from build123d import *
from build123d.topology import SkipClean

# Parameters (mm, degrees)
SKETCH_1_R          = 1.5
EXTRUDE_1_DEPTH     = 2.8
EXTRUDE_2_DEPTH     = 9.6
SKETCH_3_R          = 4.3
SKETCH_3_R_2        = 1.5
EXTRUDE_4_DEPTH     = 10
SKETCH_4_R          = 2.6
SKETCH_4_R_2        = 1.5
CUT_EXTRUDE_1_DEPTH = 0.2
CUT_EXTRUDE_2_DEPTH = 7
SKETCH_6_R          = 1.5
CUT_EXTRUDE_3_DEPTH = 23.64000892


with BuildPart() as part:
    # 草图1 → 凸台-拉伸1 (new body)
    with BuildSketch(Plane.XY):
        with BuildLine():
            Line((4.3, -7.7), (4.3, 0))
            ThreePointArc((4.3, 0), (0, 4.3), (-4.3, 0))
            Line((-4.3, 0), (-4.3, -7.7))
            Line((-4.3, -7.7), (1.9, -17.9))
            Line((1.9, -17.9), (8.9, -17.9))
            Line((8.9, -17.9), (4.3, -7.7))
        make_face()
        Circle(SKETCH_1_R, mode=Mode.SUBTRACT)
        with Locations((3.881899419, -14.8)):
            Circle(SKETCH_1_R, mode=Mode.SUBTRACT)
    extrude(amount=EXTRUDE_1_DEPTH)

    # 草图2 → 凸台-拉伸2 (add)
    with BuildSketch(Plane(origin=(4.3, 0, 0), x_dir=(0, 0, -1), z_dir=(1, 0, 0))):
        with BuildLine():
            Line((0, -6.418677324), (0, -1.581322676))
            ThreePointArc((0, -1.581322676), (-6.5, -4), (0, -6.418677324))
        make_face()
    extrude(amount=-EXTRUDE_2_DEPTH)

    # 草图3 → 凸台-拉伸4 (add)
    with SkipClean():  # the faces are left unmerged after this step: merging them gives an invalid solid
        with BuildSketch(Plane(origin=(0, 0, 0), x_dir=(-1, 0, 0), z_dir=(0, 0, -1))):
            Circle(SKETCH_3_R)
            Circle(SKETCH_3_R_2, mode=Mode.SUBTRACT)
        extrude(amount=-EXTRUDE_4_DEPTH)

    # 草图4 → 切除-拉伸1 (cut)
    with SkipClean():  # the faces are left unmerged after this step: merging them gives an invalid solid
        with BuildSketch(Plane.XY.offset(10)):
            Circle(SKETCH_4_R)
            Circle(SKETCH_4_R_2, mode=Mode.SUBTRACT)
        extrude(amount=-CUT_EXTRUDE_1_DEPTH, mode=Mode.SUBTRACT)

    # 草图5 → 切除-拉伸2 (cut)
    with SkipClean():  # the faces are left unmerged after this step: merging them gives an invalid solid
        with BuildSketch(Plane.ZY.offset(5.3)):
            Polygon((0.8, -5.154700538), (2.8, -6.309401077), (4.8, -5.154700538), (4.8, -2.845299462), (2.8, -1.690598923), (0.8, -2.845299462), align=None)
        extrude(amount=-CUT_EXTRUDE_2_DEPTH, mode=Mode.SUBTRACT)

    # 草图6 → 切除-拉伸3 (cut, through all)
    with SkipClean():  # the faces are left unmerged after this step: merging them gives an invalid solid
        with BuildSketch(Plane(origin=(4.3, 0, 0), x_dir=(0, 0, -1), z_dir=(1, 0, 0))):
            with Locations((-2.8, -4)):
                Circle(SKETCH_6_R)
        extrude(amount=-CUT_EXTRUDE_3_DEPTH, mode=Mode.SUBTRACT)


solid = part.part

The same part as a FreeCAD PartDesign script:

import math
import FreeCAD as App
import Part
import Sketcher
from FreeCAD import Vector
Q = App.Units.Quantity


def add_polygon(sketch, points):
    """Adds a closed chain of lines whose ends are joined by coincident constraints."""
    first, n = sketch.GeometryCount, len(points)
    for a, b in zip(points, points[1:] + points[:1]):
        sketch.addGeometry(Part.LineSegment(App.Vector(*a, 0), App.Vector(*b, 0)), False)
    for i in range(n):
        sketch.addConstraint(Sketcher.Constraint("Coincident", first + i, 2, first + (i + 1) % n, 1))

doc = App.newDocument("Part")
body = doc.addObject("PartDesign::Body", "Body")

# Sketch on XY plane
sketch1 = body.newObject("Sketcher::SketchObject", "Sketch")
sketch1.AttachmentSupport = (doc.getObject("XY_Plane"), [""])
sketch1.MapMode = "FlatFace"
sketch1.addGeometry([
    Part.LineSegment(Vector(4.3, -7.7, 0), Vector(4.3, 0, 0)),  # 0
    Part.ArcOfCircle(Part.Circle(Vector(0, 0, 0), Vector(0, 0, 1), 4.3), math.radians(0), math.radians(180)),  # 1
    Part.LineSegment(Vector(-4.3, 0, 0), Vector(-4.3, -7.7, 0)),  # 2
    Part.LineSegment(Vector(-4.3, -7.7, 0), Vector(1.9, -17.9, 0)),  # 3
    Part.LineSegment(Vector(1.9, -17.9, 0), Vector(8.9, -17.9, 0)),  # 4
    Part.LineSegment(Vector(8.9, -17.9, 0), Vector(4.3, -7.7, 0)),  # 5
    Part.Circle(Vector(3.9, -14.8, 0), Vector(0, 0, 1), 1.5),  # 6
    Part.Circle(Vector(0, 0, 0), Vector(0, 0, 1), 1.5),  # 7
], False)
sketch1.addConstraint([
    Sketcher.Constraint("Tangent", 0, 2, 1, 1),
    Sketcher.Constraint("Tangent", 1, 2, 2, 1),
    Sketcher.Constraint("Coincident", 2, 2, 3, 1),
    Sketcher.Constraint("Coincident", 3, 2, 4, 1),
    Sketcher.Constraint("Coincident", 4, 2, 5, 1),
    Sketcher.Constraint("Coincident", 5, 2, 0, 1),
    Sketcher.Constraint("Vertical", 0),
    Sketcher.Constraint("Vertical", 2),
    Sketcher.Constraint("Horizontal", 4),
    Sketcher.Constraint("Coincident", 1, 3, -1, 1),
    Sketcher.Constraint("Coincident", 7, 3, -1, 1),
    Sketcher.Constraint("Equal", 6, 7),
    Sketcher.Constraint("Horizontal", 2, 2, 5, 2),
    Sketcher.Constraint("Diameter", 6, 3.0),
    Sketcher.Constraint("Radius", 1, 4.3),
    Sketcher.Constraint("DistanceX", 4, 1, 4, 2, 7.0),
    Sketcher.Constraint("DistanceY", 0, 1, 0, 2, 7.7),
    Sketcher.Constraint("DistanceY", 6, 3, -1, 1, 14.8),
    Sketcher.Constraint("DistanceX", -1, 1, 3, 2, 1.9),
    Sketcher.Constraint("DistanceY", 3, 2, -1, 1, 17.9),
    Sketcher.Constraint("DistanceX", -1, 1, 6, 3, 3.881899),
])
pad1 = body.newObject("PartDesign::Pad", "Pad")
pad1.Profile = sketch1
pad1.Length = 2.8

# Sketch on YZ plane
sketch2 = body.newObject("Sketcher::SketchObject", "Sketch001")
sketch2.AttachmentSupport = (doc.getObject("YZ_Plane"), [""])
sketch2.MapMode = "FlatFace"
sketch2.AttachmentOffset = App.Placement(Vector(0, 0, 4.3), App.Rotation())
sketch2.addGeometry([
    Part.LineSegment(Vector(-6.4, 0, 0), Vector(-1.6, 0, 0)),
    Part.ArcOfCircle(Part.Circle(Vector(-4, 2.8, 0), Vector(0, 0, 1), 3.7), math.radians(-49), math.radians(229)),
], False)
sketch2.addConstraint([
    Sketcher.Constraint("Coincident", 0, 1, 1, 2),
    Sketcher.Constraint("Coincident", 1, 1, 0, 2),
    Sketcher.Constraint("Horizontal", 0),
    Sketcher.Constraint("PointOnObject", 0, 1, -1),
    Sketcher.Constraint("Radius", 1, 3.7),
    Sketcher.Constraint("DistanceX", 1, 3, -1, 1, 4.0),
    Sketcher.Constraint("DistanceY", -1, 1, 1, 3, 2.8),
])
pad2 = body.newObject("PartDesign::Pad", "Pad001")
pad2.Profile = sketch2
pad2.Length = 9.6
pad2.Reversed = True

# Sketch on XY plane
sketch3 = body.newObject("Sketcher::SketchObject", "Sketch002")
sketch3.AttachmentSupport = (doc.getObject("XY_Plane"), [""])
sketch3.MapMode = "FlatFace"
sketch3.addGeometry([
    Part.Circle(Vector(0, 0, 0), Vector(0, 0, 1), 4.3),
    Part.Circle(Vector(0, 0, 0), Vector(0, 0, 1), 1.5),
], False)
sketch3.addConstraint([
    Sketcher.Constraint("Coincident", 0, 3, -1, 1),
    Sketcher.Constraint("Coincident", 1, 3, -1, 1),
    Sketcher.Constraint("Diameter", 1, 3.0),
    Sketcher.Constraint("Diameter", 0, 8.6),
])
pad3 = body.newObject("PartDesign::Pad", "Pad002")
pad3.Profile = sketch3
pad3.Length = 10

# Sketch on XY plane
sketch4 = body.newObject("Sketcher::SketchObject", "Sketch003")
sketch4.AttachmentSupport = (doc.getObject("XY_Plane"), [""])
sketch4.MapMode = "FlatFace"
sketch4.AttachmentOffset = App.Placement(Vector(0, 0, 10), App.Rotation())
sketch4.addGeometry([
    Part.Circle(Vector(0, 0, 0), Vector(0, 0, 1), 2.6),
    Part.Circle(Vector(0, 0, 0), Vector(0, 0, 1), 1.5),
], False)
sketch4.addConstraint([
    Sketcher.Constraint("Coincident", 0, 3, -1, 1),
    Sketcher.Constraint("Coincident", 1, 3, -1, 1),
    Sketcher.Constraint("Diameter", 1, 3.0),
    Sketcher.Constraint("Diameter", 0, 5.2),
])
pocket1 = body.newObject("PartDesign::Pocket", "Pocket")
pocket1.Profile = sketch4
pocket1.Length = 0.2

# Sketch on YZ plane
sketch5 = body.newObject("Sketcher::SketchObject", "Sketch004")
sketch5.AttachmentSupport = (doc.getObject("YZ_Plane"), [""])
sketch5.MapMode = "FlatFace"
sketch5.AttachmentOffset = App.Placement(Vector(0, 0, -5.3), App.Rotation())
add_polygon(sketch5, [(-5.2, 0.8), (-6.3, 2.8), (-5.2, 4.8), (-2.8, 4.8), (-1.7, 2.8), (-2.8, 0.8)])  # lines 0-5
sketch5.addConstraint([
    Sketcher.Constraint("Horizontal", 2),
    Sketcher.Constraint("Horizontal", 5),
    Sketcher.Constraint("Parallel", 0, 3),
    Sketcher.Constraint("Parallel", 1, 4),
    Sketcher.Constraint("Horizontal", 0, 2, 3, 2),
    Sketcher.Constraint("Vertical", 2, 2, 4, 2),
    Sketcher.Constraint("Vertical", 1, 2, 5, 2),
    Sketcher.Constraint("Angle", 0, Q("120 deg")),
    Sketcher.Constraint("DistanceY", 0, 2, 1, 2, 2.0),
    Sketcher.Constraint("DistanceY", -1, 1, 0, 2, 2.8),
    Sketcher.Constraint("DistanceX", 2, 1, 2, 2, 2.309401),
    Sketcher.Constraint("DistanceX", 0, 2, -1, 1, 6.309401),
])
pocket2 = body.newObject("PartDesign::Pocket", "Pocket001")
pocket2.Profile = sketch5
pocket2.Length = 7
pocket2.Reversed = True

# Sketch on YZ plane
sketch6 = body.newObject("Sketcher::SketchObject", "Sketch005")
sketch6.AttachmentSupport = (doc.getObject("YZ_Plane"), [""])
sketch6.MapMode = "FlatFace"
sketch6.AttachmentOffset = App.Placement(Vector(0, 0, 4.3), App.Rotation())
sketch6.addGeometry(Part.Circle(Vector(-4, 2.8, 0), Vector(0, 0, 1), 1.5), False)
sketch6.addConstraint([
    Sketcher.Constraint("Diameter", 0, 3.0),
    Sketcher.Constraint("DistanceX", 0, 3, -1, 1, 4.0),
    Sketcher.Constraint("DistanceY", -1, 1, 0, 3, 2.8),
])
pocket3 = body.newObject("PartDesign::Pocket", "Pocket002")
pocket3.Profile = sketch6
pocket3.Type = "ThroughAll"

doc.recompute()
